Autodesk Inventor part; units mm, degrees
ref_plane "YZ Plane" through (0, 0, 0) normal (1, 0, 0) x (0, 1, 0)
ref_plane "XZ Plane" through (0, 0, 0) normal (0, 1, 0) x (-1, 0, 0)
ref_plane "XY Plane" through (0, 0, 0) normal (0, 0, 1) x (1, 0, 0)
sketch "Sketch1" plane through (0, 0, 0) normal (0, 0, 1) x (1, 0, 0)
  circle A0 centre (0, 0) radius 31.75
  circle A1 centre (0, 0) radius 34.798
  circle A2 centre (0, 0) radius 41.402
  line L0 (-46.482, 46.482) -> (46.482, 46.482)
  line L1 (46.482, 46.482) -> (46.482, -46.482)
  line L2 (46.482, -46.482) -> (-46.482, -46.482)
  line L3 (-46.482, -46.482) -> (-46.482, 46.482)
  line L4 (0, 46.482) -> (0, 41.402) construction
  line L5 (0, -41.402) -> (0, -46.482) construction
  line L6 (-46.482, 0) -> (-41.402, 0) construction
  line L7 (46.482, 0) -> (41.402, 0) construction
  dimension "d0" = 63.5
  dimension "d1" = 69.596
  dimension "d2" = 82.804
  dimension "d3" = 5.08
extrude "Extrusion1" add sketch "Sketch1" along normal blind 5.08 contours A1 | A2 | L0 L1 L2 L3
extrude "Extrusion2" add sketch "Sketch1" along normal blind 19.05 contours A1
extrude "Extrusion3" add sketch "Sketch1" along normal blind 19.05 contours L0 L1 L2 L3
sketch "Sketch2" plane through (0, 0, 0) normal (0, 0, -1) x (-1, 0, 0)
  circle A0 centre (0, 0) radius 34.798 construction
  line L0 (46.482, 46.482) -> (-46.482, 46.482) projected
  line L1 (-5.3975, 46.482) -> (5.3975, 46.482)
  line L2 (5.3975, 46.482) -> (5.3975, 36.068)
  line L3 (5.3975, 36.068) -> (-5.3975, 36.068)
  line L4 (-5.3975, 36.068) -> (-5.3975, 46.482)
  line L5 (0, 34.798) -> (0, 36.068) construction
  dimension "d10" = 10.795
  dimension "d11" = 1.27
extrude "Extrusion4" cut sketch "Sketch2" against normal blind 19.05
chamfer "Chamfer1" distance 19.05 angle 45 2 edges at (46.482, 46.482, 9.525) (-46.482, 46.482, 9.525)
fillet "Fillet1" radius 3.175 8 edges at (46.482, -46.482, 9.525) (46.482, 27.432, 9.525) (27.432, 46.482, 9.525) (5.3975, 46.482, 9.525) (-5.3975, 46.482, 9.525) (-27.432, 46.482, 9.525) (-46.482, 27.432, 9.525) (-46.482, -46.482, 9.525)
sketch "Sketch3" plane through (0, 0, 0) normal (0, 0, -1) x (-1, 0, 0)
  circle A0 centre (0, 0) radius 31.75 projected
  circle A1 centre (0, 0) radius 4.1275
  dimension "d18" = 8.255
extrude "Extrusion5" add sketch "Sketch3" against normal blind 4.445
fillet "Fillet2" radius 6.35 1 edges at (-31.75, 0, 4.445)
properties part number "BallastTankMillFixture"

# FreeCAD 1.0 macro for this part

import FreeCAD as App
import Part
import Sketcher
from FreeCAD import Vector
Q = App.Units.Quantity


def edges_at(feature, points):
    """Names of the edges that pass closest to the given points."""
    edges = feature.Shape.Edges
    near = lambda p: min(range(len(edges)), key=lambda i: edges[i].distToShape(Part.Vertex(*p))[0])
    return sorted({f"Edge{near(p) + 1}" for p in points})

doc = App.newDocument("Part")
body = doc.addObject("PartDesign::Body", "Body")

# Sketch on XY plane
sketch1 = body.newObject("Sketcher::SketchObject", "Sketch")
sketch1.AttachmentSupport = (doc.getObject("XY_Plane"), [""])
sketch1.MapMode = "FlatFace"
sketch1.addGeometry(Part.LineSegment(Vector(46.482, 46.482, 0), Vector(-46.482, 46.482, 0)), False)
sketch1.addGeometry(Part.LineSegment(Vector(-46.482, 46.482, 0), Vector(-46.482, -46.482, 0)), False)
sketch1.addGeometry(Part.LineSegment(Vector(-46.482, -46.482, 0), Vector(46.482, -46.482, 0)), False)
sketch1.addGeometry(Part.LineSegment(Vector(46.482, -46.482, 0), Vector(46.482, 46.482, 0)), False)
sketch1.addGeometry(Part.Circle(Vector(0, 0, 0), Vector(0, 0, 1), 31.75), False)
sketch1.addConstraint(Sketcher.Constraint("Coincident", 0, 2, 1, 1))
sketch1.addConstraint(Sketcher.Constraint("Coincident", 1, 2, 2, 1))
sketch1.addConstraint(Sketcher.Constraint("Coincident", 2, 2, 3, 1))
sketch1.addConstraint(Sketcher.Constraint("Coincident", 3, 2, 0, 1))
sketch1.addConstraint(Sketcher.Constraint("Horizontal", 0))
sketch1.addConstraint(Sketcher.Constraint("Vertical", 1))
sketch1.addConstraint(Sketcher.Constraint("Horizontal", 2))
sketch1.addConstraint(Sketcher.Constraint("Vertical", 3))
sketch1.addConstraint(Sketcher.Constraint("Coincident", 4, 3, -1, 1))
sketch1.addConstraint(Sketcher.Constraint("Symmetric", 0, 2, 2, 2, -1, 1))
sketch1.addConstraint(Sketcher.Constraint("Equal", 2, 1))
sketch1.addConstraint(Sketcher.Constraint("Diameter", 4, Q("2.5 in")))
sketch1.addConstraint(Sketcher.Constraint("DistanceX", 0, 2, 0, 1, Q("3.66 in")))
pad1 = body.newObject("PartDesign::Pad", "Pad")
pad1.Profile = sketch1
pad1.Length = Q("0.2 in")

# Sketch on XY plane
sketch2 = body.newObject("Sketcher::SketchObject", "Sketch001")
sketch2.AttachmentSupport = (doc.getObject("XY_Plane"), [""])
sketch2.MapMode = "FlatFace"
sketch2.addGeometry(Part.Circle(Vector(0, 0, 0), Vector(0, 0, 1), 34.798), False)
sketch2.addGeometry(Part.Circle(Vector(0, 0, 0), Vector(0, 0, 1), 31.75), False)
sketch2.addConstraint(Sketcher.Constraint("Coincident", 0, 3, -1, 1))
sketch2.addConstraint(Sketcher.Constraint("Coincident", 1, 3, -1, 1))
sketch2.addConstraint(Sketcher.Constraint("Diameter", 1, Q("2.5 in")))
sketch2.addConstraint(Sketcher.Constraint("Diameter", 0, Q("2.74 in")))
pad2 = body.newObject("PartDesign::Pad", "Pad001")
pad2.Profile = sketch2
pad2.Length = Q("0.75 in")

# Sketch on XY plane
sketch3 = body.newObject("Sketcher::SketchObject", "Sketch002")
sketch3.AttachmentSupport = (doc.getObject("XY_Plane"), [""])
sketch3.MapMode = "FlatFace"
sketch3.addGeometry(Part.LineSegment(Vector(46.482, 46.482, 0), Vector(-46.482, 46.482, 0)), False)
sketch3.addGeometry(Part.LineSegment(Vector(-46.482, 46.482, 0), Vector(-46.482, -46.482, 0)), False)
sketch3.addGeometry(Part.LineSegment(Vector(-46.482, -46.482, 0), Vector(46.482, -46.482, 0)), False)
sketch3.addGeometry(Part.LineSegment(Vector(46.482, -46.482, 0), Vector(46.482, 46.482, 0)), False)
sketch3.addGeometry(Part.Circle(Vector(0, 0, 0), Vector(0, 0, 1), 41.402), False)
sketch3.addConstraint(Sketcher.Constraint("Coincident", 0, 2, 1, 1))
sketch3.addConstraint(Sketcher.Constraint("Coincident", 1, 2, 2, 1))
sketch3.addConstraint(Sketcher.Constraint("Coincident", 2, 2, 3, 1))
sketch3.addConstraint(Sketcher.Constraint("Coincident", 3, 2, 0, 1))
sketch3.addConstraint(Sketcher.Constraint("Horizontal", 0))
sketch3.addConstraint(Sketcher.Constraint("Vertical", 1))
sketch3.addConstraint(Sketcher.Constraint("Horizontal", 2))
sketch3.addConstraint(Sketcher.Constraint("Vertical", 3))
sketch3.addConstraint(Sketcher.Constraint("Coincident", 4, 3, -1, 1))
sketch3.addConstraint(Sketcher.Constraint("Symmetric", 0, 2, 2, 2, -1, 1))
sketch3.addConstraint(Sketcher.Constraint("Equal", 2, 1))
sketch3.addConstraint(Sketcher.Constraint("Diameter", 4, Q("3.26 in")))
sketch3.addConstraint(Sketcher.Constraint("DistanceX", 0, 2, 0, 1, Q("3.66 in")))
pad3 = body.newObject("PartDesign::Pad", "Pad002")
pad3.Profile = sketch3
pad3.Length = Q("0.75 in")

# Sketch on XY plane
sketch4 = body.newObject("Sketcher::SketchObject", "Sketch003")
sketch4.AttachmentSupport = (doc.getObject("XY_Plane"), [""])
sketch4.MapMode = "FlatFace"
sketch4.addGeometry(Part.LineSegment(Vector(-5.3975, 36.068, 0), Vector(-5.3975, 46.482, 0)), False)
sketch4.addGeometry(Part.LineSegment(Vector(-5.3975, 46.482, 0), Vector(5.3975, 46.482, 0)), False)
sketch4.addGeometry(Part.LineSegment(Vector(5.3975, 46.482, 0), Vector(5.3975, 36.068, 0)), False)
sketch4.addGeometry(Part.LineSegment(Vector(5.3975, 36.068, 0), Vector(-5.3975, 36.068, 0)), False)
sketch4.addConstraint(Sketcher.Constraint("Coincident", 0, 2, 1, 1))
sketch4.addConstraint(Sketcher.Constraint("Coincident", 1, 2, 2, 1))
sketch4.addConstraint(Sketcher.Constraint("Coincident", 2, 2, 3, 1))
sketch4.addConstraint(Sketcher.Constraint("Coincident", 3, 2, 0, 1))
sketch4.addConstraint(Sketcher.Constraint("Vertical", 0))
sketch4.addConstraint(Sketcher.Constraint("Horizontal", 1))
sketch4.addConstraint(Sketcher.Constraint("Vertical", 2))
sketch4.addConstraint(Sketcher.Constraint("Horizontal", 3))
sketch4.addConstraint(Sketcher.Constraint("DistanceX", 1, 1, 1, 2, Q("0.425 in")))
sketch4.addConstraint(Sketcher.Constraint("DistanceY", 0, 1, 0, 2, Q("0.41 in")))
sketch4.addConstraint(Sketcher.Constraint("DistanceY", -1, 1, 0, 2, Q("1.83 in")))
sketch4.addConstraint(Sketcher.Constraint("DistanceX", 0, 2, -1, 1, Q("0.2125 in")))
pocket1 = body.newObject("PartDesign::Pocket", "Pocket")
pocket1.Profile = sketch4
pocket1.Length = Q("0.75 in")
pocket1.Reversed = True
doc.recompute()

chamfer = body.newObject("PartDesign::Chamfer", "Chamfer")
chamfer.Base = (pocket1, edges_at(pocket1, [(46.482, 46.482, 9.525), (-46.482, 46.482, 9.525)]))
chamfer.Size = Q("0.75 in")
doc.recompute()

fillet = body.newObject("PartDesign::Fillet", "Fillet")
fillet.Base = (chamfer, edges_at(chamfer, [
    (46.482, -46.482, 9.525),
    (46.482, 27.432, 9.525),
    (27.432, 46.482, 9.525),
    (5.397, 46.482, 9.525),
    (-5.397, 46.482, 9.525),
    (-27.432, 46.482, 9.525),
    (-46.482, 27.432, 9.525),
    (-46.482, -46.482, 9.525),
]))
fillet.Radius = Q("0.125 in")

# Sketch on XY plane
sketch5 = body.newObject("Sketcher::SketchObject", "Sketch004")
sketch5.AttachmentSupport = (doc.getObject("XY_Plane"), [""])
sketch5.MapMode = "FlatFace"
sketch5.addGeometry(Part.Circle(Vector(0, 0, 0), Vector(0, 0, 1), 31.75), False)
sketch5.addGeometry(Part.Circle(Vector(0, 0, 0), Vector(0, 0, 1), 4.1275), False)
sketch5.addConstraint(Sketcher.Constraint("Coincident", 0, 3, -1, 1))
sketch5.addConstraint(Sketcher.Constraint("Coincident", 1, 3, -1, 1))
sketch5.addConstraint(Sketcher.Constraint("Diameter", 1, Q("0.325 in")))
sketch5.addConstraint(Sketcher.Constraint("Diameter", 0, Q("2.5 in")))
pad4 = body.newObject("PartDesign::Pad", "Pad003")
pad4.Profile = sketch5
pad4.Length = Q("0.175 in")
doc.recompute()

fillet2 = body.newObject("PartDesign::Fillet", "Fillet001")
fillet2.Base = (pad4, edges_at(pad4, [(-31.75, 0, 4.445)]))
fillet2.Radius = Q("0.25 in")

doc.recompute()
